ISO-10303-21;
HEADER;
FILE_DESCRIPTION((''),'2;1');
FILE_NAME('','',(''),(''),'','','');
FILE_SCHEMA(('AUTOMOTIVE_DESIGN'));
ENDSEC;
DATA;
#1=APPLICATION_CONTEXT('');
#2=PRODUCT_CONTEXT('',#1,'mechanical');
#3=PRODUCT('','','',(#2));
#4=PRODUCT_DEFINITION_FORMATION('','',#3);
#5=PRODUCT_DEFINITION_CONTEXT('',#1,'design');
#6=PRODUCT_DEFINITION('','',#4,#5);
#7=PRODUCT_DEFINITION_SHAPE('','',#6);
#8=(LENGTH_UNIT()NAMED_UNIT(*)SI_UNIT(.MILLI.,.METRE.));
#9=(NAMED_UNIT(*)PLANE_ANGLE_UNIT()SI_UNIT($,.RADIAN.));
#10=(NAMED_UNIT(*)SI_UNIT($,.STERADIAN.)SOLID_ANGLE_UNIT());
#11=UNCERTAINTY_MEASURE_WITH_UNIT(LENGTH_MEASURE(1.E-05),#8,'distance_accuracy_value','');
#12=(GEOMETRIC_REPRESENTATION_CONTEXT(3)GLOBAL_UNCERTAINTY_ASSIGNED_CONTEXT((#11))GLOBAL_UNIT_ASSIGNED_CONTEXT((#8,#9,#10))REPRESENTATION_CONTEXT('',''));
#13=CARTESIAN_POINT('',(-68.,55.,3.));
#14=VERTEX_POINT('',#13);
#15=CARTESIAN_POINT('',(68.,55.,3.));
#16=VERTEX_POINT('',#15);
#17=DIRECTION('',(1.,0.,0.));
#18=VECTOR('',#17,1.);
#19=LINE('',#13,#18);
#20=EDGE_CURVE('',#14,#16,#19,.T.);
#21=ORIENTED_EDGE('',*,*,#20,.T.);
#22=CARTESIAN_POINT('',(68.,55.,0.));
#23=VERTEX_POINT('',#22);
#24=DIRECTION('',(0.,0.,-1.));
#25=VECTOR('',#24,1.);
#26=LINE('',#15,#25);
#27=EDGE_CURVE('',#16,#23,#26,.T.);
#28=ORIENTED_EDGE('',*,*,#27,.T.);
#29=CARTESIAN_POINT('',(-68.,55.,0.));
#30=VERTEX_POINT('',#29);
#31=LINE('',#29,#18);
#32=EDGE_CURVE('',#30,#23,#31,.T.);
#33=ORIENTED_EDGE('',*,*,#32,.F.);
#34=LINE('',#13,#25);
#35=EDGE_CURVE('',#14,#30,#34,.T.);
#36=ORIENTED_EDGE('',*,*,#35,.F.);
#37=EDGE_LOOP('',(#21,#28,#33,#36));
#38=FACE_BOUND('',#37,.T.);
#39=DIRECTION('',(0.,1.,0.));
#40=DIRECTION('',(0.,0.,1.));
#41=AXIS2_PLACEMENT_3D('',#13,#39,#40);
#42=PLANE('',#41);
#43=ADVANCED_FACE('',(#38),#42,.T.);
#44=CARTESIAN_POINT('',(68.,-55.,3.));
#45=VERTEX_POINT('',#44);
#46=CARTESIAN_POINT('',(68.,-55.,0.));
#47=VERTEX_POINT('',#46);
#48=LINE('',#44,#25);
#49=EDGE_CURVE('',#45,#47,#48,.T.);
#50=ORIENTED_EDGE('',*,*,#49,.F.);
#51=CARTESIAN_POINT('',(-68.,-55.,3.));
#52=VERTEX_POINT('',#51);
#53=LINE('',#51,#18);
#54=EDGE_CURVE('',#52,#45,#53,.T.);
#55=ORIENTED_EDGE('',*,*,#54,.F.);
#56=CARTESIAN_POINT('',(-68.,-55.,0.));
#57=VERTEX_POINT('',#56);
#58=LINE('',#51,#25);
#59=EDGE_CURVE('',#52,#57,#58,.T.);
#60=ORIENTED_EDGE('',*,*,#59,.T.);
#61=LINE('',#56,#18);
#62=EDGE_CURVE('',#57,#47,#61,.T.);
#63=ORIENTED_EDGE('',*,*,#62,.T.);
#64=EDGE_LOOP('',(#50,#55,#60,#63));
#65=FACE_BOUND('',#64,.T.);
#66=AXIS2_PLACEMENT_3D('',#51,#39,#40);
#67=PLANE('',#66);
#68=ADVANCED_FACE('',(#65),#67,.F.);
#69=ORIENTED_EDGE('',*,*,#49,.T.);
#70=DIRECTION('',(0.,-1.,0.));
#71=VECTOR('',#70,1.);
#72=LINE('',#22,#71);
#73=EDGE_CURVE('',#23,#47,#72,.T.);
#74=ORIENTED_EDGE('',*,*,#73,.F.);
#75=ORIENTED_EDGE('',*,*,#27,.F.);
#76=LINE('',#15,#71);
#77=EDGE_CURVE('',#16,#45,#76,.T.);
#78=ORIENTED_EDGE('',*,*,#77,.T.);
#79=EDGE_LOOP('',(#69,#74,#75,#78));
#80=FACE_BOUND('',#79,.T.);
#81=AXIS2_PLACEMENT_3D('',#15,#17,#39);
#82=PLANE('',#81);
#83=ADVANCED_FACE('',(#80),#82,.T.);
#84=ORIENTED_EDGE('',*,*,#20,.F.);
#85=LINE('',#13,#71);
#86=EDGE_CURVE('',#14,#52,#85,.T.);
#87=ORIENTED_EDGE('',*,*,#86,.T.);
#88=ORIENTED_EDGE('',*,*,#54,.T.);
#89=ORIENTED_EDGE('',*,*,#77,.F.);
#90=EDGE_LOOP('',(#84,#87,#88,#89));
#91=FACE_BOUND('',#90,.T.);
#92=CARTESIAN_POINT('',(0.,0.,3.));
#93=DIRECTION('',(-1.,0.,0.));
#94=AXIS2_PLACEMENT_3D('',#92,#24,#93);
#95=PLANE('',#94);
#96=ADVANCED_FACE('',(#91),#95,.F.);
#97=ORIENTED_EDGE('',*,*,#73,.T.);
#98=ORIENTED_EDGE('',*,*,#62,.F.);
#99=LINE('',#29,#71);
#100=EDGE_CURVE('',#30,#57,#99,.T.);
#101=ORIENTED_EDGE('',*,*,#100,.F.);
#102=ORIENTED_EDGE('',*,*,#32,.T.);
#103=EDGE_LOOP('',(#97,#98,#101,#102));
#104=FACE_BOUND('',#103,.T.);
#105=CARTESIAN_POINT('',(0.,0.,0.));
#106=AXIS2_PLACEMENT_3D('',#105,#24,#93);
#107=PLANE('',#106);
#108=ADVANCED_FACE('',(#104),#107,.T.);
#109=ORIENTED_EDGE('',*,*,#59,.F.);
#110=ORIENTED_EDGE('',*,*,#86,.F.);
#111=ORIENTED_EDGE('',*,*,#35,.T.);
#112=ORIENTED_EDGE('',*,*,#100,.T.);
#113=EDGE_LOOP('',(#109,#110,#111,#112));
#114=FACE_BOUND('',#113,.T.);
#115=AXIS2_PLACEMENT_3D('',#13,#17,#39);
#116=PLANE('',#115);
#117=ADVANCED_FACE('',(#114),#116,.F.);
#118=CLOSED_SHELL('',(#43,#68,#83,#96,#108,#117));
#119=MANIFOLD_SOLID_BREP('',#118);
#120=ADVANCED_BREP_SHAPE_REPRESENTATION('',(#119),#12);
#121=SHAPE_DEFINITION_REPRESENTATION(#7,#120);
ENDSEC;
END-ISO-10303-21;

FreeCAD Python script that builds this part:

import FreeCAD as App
import Part
import Sketcher


def add_polygon(sketch, points):
    """Adds a closed chain of lines whose ends are joined by coincident constraints."""
    first, n = sketch.GeometryCount, len(points)
    for a, b in zip(points, points[1:] + points[:1]):
        sketch.addGeometry(Part.LineSegment(App.Vector(*a, 0), App.Vector(*b, 0)), False)
    for i in range(n):
        sketch.addConstraint(Sketcher.Constraint("Coincident", first + i, 2, first + (i + 1) % n, 1))

doc = App.newDocument("Part")
body = doc.addObject("PartDesign::Body", "Body")

# Sketch on XY plane
sketch1 = body.newObject("Sketcher::SketchObject", "Sketch")
sketch1.AttachmentSupport = (doc.getObject("XY_Plane"), [""])
sketch1.MapMode = "FlatFace"
add_polygon(sketch1, [(-68, 55), (-68, -55), (68, -55), (68, 55)])  # lines 0-3
sketch1.addConstraint([
    Sketcher.Constraint("Vertical", 0),
    Sketcher.Constraint("Horizontal", 1),
    Sketcher.Constraint("Vertical", 2),
    Sketcher.Constraint("Horizontal", 3),
    Sketcher.Constraint("Symmetric", 0, 2, 2, 2, -1, 1),
    Sketcher.Constraint("DistanceX", 1, 1, 1, 2, 136.0),
    Sketcher.Constraint("DistanceY", 0, 2, 0, 1, 110.0),
])
pad1 = body.newObject("PartDesign::Pad", "Pad")
pad1.Profile = sketch1
pad1.Length = 3

doc.recompute()
